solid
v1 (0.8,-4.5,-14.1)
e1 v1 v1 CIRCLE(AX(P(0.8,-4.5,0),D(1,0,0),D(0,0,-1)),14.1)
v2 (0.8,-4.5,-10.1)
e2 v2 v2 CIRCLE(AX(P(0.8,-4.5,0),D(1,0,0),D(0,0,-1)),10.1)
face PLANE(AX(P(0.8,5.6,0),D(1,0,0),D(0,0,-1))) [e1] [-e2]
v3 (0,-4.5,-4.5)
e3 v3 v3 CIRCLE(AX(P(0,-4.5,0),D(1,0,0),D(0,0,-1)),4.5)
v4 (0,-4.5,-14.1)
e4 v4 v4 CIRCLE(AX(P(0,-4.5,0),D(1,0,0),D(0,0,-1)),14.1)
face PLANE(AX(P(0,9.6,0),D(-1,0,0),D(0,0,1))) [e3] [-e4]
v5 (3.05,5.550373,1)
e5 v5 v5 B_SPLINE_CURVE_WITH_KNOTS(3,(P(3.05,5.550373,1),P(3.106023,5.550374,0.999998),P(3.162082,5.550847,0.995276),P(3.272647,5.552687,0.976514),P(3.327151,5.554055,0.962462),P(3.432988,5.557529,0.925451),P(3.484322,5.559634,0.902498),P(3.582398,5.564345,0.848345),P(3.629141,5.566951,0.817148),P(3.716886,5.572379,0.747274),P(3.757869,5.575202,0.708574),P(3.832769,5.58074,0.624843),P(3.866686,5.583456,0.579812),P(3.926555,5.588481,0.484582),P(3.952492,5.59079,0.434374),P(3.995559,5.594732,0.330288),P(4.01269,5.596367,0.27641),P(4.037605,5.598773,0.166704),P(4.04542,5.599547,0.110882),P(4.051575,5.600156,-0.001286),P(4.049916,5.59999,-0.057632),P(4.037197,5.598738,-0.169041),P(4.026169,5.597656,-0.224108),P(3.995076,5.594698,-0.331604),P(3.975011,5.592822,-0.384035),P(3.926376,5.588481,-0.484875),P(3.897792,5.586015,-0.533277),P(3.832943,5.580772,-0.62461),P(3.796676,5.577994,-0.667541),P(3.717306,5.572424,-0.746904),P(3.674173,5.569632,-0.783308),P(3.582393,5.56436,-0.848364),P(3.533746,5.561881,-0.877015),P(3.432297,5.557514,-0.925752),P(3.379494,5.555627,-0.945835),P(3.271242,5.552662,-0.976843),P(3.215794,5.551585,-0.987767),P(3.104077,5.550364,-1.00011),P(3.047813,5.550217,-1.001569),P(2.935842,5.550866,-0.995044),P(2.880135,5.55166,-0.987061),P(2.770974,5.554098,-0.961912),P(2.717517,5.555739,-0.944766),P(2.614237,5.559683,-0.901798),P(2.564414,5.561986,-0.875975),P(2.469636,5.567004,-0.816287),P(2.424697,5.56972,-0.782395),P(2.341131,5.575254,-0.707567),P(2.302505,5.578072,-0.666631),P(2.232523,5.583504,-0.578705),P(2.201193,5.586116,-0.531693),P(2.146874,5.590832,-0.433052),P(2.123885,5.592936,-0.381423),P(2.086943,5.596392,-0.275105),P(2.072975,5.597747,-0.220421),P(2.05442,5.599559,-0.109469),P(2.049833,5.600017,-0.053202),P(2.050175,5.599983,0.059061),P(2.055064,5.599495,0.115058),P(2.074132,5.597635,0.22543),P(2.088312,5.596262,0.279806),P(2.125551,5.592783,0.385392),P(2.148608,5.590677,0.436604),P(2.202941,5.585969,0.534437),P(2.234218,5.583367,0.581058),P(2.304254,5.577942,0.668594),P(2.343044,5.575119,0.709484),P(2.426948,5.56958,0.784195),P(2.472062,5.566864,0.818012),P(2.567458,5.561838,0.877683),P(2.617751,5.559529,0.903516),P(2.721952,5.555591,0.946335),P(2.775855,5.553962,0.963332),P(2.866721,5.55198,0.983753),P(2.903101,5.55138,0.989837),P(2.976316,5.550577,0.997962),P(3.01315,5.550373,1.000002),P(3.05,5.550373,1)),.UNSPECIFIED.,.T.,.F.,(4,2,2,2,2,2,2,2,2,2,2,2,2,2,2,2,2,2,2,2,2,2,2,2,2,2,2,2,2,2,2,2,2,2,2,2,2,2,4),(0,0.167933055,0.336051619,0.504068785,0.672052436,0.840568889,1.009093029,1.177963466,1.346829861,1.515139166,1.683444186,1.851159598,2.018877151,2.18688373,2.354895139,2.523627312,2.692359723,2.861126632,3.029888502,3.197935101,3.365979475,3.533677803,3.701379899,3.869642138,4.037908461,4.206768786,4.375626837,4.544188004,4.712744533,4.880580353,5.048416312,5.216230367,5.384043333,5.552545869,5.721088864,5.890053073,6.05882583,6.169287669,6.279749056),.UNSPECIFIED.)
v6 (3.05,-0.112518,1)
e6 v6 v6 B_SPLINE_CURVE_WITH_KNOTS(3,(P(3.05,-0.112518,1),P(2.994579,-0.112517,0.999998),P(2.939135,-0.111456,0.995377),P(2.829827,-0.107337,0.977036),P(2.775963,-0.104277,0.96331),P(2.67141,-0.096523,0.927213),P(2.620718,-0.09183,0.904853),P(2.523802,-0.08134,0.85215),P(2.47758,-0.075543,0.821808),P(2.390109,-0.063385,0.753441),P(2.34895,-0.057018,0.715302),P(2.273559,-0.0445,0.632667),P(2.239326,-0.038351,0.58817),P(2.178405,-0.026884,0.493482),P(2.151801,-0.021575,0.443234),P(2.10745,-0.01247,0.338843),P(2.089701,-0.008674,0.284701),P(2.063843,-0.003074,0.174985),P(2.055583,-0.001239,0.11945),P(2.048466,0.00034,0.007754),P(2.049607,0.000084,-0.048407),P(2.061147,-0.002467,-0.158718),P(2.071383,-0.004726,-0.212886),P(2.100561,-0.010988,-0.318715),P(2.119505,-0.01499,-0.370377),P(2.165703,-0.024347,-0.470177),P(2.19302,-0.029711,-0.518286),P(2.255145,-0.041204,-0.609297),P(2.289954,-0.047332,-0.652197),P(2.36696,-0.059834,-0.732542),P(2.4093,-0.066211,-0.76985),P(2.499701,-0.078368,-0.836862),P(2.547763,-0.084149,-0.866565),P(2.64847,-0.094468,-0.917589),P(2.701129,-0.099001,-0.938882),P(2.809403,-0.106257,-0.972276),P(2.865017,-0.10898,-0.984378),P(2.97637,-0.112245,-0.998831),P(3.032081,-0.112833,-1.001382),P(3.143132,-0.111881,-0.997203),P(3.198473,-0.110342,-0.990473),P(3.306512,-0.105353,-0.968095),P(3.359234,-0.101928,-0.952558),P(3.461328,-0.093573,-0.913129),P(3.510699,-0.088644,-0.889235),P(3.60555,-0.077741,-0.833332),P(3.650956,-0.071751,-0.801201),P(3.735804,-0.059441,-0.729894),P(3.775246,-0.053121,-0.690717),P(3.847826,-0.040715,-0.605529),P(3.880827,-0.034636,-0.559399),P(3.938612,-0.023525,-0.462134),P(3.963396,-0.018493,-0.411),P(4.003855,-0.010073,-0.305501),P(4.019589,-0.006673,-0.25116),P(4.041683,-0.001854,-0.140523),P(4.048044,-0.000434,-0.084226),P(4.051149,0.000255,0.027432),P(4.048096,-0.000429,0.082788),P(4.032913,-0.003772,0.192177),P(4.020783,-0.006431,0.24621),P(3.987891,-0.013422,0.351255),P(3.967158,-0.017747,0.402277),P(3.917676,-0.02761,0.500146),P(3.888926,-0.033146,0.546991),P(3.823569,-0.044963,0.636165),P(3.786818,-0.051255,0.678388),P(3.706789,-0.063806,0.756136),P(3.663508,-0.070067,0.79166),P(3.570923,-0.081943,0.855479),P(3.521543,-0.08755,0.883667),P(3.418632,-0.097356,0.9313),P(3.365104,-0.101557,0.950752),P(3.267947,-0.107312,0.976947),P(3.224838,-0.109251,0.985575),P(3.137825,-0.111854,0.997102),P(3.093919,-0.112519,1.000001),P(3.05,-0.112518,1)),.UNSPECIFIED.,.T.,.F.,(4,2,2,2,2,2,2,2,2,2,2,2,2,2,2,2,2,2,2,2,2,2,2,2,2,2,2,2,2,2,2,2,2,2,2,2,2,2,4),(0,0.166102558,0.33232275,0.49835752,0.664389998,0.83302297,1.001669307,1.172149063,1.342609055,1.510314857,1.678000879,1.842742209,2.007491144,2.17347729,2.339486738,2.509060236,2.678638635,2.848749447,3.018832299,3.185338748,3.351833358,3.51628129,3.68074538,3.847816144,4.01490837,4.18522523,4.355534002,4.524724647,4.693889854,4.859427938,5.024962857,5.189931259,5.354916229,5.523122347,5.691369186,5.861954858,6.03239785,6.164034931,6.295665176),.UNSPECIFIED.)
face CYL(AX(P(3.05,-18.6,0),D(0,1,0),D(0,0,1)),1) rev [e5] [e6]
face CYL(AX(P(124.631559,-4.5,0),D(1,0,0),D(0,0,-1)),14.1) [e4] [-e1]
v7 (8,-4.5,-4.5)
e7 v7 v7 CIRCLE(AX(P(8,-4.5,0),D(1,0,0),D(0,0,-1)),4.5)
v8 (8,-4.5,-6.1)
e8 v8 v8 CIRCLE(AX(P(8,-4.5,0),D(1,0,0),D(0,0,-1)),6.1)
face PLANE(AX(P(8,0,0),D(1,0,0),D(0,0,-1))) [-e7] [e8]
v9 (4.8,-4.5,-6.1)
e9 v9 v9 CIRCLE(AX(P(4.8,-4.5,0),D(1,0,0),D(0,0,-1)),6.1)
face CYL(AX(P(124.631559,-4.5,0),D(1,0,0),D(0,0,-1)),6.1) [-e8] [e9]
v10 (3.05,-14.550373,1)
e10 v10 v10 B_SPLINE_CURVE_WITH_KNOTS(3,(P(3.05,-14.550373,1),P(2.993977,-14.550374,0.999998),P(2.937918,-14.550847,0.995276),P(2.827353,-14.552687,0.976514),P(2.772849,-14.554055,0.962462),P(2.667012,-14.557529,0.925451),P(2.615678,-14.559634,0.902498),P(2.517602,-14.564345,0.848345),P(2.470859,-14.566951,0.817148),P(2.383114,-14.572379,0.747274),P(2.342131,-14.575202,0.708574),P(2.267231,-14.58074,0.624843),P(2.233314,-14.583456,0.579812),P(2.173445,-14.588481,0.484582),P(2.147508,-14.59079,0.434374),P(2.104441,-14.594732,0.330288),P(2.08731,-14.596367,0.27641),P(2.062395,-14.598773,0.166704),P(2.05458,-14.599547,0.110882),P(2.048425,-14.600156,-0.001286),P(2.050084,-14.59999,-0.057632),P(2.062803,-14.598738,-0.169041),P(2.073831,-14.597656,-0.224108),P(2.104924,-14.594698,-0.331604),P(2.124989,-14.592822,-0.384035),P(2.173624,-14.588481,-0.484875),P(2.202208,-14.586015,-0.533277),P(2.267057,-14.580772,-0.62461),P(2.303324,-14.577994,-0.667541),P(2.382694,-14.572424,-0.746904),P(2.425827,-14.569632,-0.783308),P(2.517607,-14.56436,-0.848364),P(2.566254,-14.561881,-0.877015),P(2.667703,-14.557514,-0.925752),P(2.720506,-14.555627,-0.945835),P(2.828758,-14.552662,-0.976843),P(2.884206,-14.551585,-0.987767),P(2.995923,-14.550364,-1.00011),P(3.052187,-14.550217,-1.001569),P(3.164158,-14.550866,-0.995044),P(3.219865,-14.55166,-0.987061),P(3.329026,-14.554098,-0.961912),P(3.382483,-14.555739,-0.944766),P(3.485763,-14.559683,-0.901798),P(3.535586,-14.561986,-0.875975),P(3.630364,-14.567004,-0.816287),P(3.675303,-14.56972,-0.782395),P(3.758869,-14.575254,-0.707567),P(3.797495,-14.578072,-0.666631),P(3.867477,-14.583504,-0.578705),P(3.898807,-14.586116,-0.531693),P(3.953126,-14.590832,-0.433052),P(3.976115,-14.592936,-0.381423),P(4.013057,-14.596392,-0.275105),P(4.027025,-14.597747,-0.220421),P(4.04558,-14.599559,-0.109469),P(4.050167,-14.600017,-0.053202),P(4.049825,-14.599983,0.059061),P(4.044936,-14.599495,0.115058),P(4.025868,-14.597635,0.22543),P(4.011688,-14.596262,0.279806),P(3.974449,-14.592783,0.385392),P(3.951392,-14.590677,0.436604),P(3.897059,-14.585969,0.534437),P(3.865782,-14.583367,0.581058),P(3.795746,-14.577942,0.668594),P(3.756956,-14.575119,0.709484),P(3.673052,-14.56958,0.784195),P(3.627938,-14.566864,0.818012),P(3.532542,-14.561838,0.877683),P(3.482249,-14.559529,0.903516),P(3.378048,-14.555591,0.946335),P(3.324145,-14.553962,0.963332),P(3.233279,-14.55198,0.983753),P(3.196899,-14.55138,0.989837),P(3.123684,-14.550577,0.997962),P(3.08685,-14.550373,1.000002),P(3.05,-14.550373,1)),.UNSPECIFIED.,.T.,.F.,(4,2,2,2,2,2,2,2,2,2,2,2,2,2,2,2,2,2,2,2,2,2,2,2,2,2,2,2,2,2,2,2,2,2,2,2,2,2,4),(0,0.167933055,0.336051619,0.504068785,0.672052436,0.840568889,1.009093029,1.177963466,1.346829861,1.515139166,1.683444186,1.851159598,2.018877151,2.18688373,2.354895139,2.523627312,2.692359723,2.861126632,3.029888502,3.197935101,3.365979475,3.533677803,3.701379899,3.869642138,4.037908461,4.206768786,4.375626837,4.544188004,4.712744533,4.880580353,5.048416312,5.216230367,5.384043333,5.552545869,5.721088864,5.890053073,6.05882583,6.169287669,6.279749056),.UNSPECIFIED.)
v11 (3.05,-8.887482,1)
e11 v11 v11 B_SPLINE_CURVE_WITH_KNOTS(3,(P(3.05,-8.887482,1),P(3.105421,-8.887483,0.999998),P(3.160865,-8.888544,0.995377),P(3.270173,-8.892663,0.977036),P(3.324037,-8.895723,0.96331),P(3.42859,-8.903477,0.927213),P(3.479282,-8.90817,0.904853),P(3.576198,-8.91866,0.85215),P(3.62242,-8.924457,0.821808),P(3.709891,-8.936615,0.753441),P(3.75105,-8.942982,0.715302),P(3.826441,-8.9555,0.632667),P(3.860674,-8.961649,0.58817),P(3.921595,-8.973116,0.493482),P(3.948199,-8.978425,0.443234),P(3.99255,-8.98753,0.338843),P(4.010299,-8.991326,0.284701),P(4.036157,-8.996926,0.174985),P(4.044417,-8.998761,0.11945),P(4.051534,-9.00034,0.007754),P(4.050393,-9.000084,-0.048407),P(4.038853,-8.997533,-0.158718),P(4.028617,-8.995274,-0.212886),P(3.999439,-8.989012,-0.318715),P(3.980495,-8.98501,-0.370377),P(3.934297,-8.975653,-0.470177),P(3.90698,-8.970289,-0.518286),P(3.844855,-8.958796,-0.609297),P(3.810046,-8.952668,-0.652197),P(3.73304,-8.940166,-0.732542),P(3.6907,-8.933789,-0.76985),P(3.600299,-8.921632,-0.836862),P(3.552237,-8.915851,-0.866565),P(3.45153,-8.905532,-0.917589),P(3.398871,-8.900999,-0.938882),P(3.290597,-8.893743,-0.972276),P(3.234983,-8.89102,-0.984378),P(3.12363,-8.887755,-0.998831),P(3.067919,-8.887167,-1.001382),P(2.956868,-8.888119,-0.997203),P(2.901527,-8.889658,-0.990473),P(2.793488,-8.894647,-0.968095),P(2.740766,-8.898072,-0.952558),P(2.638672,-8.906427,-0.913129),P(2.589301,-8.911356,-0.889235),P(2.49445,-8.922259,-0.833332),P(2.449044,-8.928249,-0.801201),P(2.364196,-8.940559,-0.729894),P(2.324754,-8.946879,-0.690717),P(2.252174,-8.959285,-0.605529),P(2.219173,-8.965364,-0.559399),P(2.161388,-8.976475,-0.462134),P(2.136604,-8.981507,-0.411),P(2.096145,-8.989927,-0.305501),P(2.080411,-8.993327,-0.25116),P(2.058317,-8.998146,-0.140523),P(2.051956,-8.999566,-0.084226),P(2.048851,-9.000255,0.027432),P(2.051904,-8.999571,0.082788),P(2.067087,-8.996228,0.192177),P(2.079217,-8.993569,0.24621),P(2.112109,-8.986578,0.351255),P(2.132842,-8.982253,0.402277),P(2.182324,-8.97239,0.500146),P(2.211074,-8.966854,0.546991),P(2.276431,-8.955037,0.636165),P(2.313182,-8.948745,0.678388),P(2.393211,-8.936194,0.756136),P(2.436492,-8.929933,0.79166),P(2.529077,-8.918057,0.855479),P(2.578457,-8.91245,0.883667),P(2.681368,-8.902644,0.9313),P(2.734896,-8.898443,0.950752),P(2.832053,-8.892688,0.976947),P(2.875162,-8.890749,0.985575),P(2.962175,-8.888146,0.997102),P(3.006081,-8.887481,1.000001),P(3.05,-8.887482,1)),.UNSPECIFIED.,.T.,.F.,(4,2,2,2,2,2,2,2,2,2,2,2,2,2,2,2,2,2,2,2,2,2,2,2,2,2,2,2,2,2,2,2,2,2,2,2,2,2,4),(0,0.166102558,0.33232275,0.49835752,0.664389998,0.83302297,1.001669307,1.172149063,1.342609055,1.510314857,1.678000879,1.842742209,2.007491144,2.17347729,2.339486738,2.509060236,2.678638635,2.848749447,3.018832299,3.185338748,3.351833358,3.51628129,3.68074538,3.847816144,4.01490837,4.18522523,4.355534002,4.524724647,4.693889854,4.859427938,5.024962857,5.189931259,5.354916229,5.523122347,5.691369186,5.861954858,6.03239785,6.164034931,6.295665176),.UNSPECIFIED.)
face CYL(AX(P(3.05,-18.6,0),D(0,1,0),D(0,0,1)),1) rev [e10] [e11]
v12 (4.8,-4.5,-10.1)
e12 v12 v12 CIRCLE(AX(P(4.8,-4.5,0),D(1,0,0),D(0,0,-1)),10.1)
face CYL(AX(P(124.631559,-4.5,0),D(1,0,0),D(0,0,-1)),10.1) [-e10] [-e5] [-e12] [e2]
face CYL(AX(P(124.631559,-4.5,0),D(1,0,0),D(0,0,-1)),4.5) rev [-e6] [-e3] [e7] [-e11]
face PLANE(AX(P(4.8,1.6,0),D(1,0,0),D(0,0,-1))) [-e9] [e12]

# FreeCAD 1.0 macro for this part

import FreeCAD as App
import Part
import Sketcher

V = App.Vector

doc = App.newDocument("Part")
params = doc.addObject("Spreadsheet::Sheet", "Params")
for row, (alias, value) in enumerate([
    ("sketch1_width", "8 mm"),
    ("sketch1_width2", "4 mm"),
    ("sketch1_width3", "3.2 mm"),
    ("sketch1_height", "1.6 mm"),
    ("revolution_angle", "360 deg"),
    ("sketch2_diameter", "2 mm"),
], start=1):
    params.set(f"A{row}", alias)
    params.set(f"B{row}", "=" + value)
    params.setAlias(f"B{row}", alias)

body = doc.addObject("PartDesign::Body", "Body")

sketch1 = body.newObject("Sketcher::SketchObject", "Sketch")
sketch1.AttachmentSupport = (doc.getObject("XY_Plane"), [""])
sketch1.MapMode = "FlatFace"
sketch1.addGeometry(Part.LineSegment(V(0, 0, 0), V(8, 0, 0)), False)
sketch1.addGeometry(Part.LineSegment(V(8, 0, 0), V(8, 1.6, 0)), False)
sketch1.addGeometry(Part.LineSegment(V(8, 1.6, 0), V(4.8, 1.6, 0)), False)
sketch1.addGeometry(Part.LineSegment(V(4.8, 1.6, 0), V(4.8, 5.6, 0)), False)
sketch1.addGeometry(Part.LineSegment(V(4.8, 5.6, 0), V(0.8, 5.6, 0)), False)
sketch1.addGeometry(Part.LineSegment(V(0.8, 5.6, 0), V(0.8, 9.6, 0)), False)
sketch1.addGeometry(Part.LineSegment(V(0.8, 9.6, 0), V(0, 9.6, 0)), False)
sketch1.addGeometry(Part.LineSegment(V(0, 9.6, 0), V(0, 0, 0)), False)
sketch1.addGeometry(Part.LineSegment(V(8, -4.5, 0), V(0, -4.5, 0)), True)
sketch1.addConstraint(Sketcher.Constraint("Coincident", 0, 2, 1, 1))
sketch1.addConstraint(Sketcher.Constraint("Coincident", 1, 2, 2, 1))
sketch1.addConstraint(Sketcher.Constraint("Coincident", 2, 2, 3, 1))
sketch1.addConstraint(Sketcher.Constraint("Coincident", 3, 2, 4, 1))
sketch1.addConstraint(Sketcher.Constraint("Coincident", 4, 2, 5, 1))
sketch1.addConstraint(Sketcher.Constraint("Coincident", 5, 2, 6, 1))
sketch1.addConstraint(Sketcher.Constraint("Coincident", 6, 2, 7, 1))
sketch1.addConstraint(Sketcher.Constraint("Coincident", 7, 2, 0, 1))
sketch1.addConstraint(Sketcher.Constraint("Horizontal", 0))
sketch1.addConstraint(Sketcher.Constraint("Vertical", 1))
sketch1.addConstraint(Sketcher.Constraint("Horizontal", 2))
sketch1.addConstraint(Sketcher.Constraint("Vertical", 3))
sketch1.addConstraint(Sketcher.Constraint("Horizontal", 4))
sketch1.addConstraint(Sketcher.Constraint("Vertical", 5))
sketch1.addConstraint(Sketcher.Constraint("Horizontal", 6))
sketch1.addConstraint(Sketcher.Constraint("Vertical", 7))
sketch1.addConstraint(Sketcher.Constraint("Horizontal", 8))
sketch1.addConstraint(Sketcher.Constraint("Coincident", 7, 2, -1, 1))
sketch1.addConstraint(Sketcher.Constraint("PointOnObject", 8, 2, -2))
sketch1.addConstraint(Sketcher.Constraint("Vertical", 1, 2, 8, 1))
sketch1.addConstraint(Sketcher.Constraint("Equal", 4, 3))
sketch1.addConstraint(Sketcher.Constraint("Equal", 3, 5))
sketch1.addConstraint(Sketcher.Constraint("DistanceX", 0, 1, 0, 2, 8.0))
sketch1.addConstraint(Sketcher.Constraint("DistanceX", 4, 2, 4, 1, 4.0))
sketch1.addConstraint(Sketcher.Constraint("DistanceX", 2, 2, 2, 1, 3.2))
sketch1.addConstraint(Sketcher.Constraint("DistanceY", 1, 1, 1, 2, 1.6))
sketch1.addConstraint(Sketcher.Constraint("DistanceY", 8, 1, -1, 1, 4.5))
sketch1.setExpression("Constraints[22]", "Params.sketch1_width")
sketch1.setExpression("Constraints[23]", "Params.sketch1_width2")
sketch1.setExpression("Constraints[24]", "Params.sketch1_width3")
sketch1.setExpression("Constraints[25]", "Params.sketch1_height")
revolution = body.newObject("PartDesign::Revolution", "Revolution")
revolution.Profile = sketch1
revolution.ReferenceAxis = (sketch1, ["Axis0"])
revolution.setExpression("Angle", "Params.revolution_angle")

sketch2 = body.newObject("Sketcher::SketchObject", "Sketch001")
sketch2.AttachmentSupport = (doc.getObject("XZ_Plane"), [""])
sketch2.MapMode = "FlatFace"
sketch2.AttachmentOffset = App.Placement(V(0, 0, 4.5), App.Rotation())
sketch2.addGeometry(Part.Circle(V(3.05, 0, 0), V(0, 0, 1), 1), False)
sketch2.addConstraint(Sketcher.Constraint("PointOnObject", 0, 3, -1))
sketch2.addConstraint(Sketcher.Constraint("Diameter", 0, 2.0))
sketch2.addConstraint(Sketcher.Constraint("DistanceX", -1, 1, 0, 3, 3.05))
sketch2.setExpression("Constraints[1]", "Params.sketch2_diameter")
pocket1 = body.newObject("PartDesign::Pocket", "Pocket")
pocket1.Profile = sketch2
pocket1.Type = "ThroughAll"
pocket1.Midplane = True

doc.recompute()
